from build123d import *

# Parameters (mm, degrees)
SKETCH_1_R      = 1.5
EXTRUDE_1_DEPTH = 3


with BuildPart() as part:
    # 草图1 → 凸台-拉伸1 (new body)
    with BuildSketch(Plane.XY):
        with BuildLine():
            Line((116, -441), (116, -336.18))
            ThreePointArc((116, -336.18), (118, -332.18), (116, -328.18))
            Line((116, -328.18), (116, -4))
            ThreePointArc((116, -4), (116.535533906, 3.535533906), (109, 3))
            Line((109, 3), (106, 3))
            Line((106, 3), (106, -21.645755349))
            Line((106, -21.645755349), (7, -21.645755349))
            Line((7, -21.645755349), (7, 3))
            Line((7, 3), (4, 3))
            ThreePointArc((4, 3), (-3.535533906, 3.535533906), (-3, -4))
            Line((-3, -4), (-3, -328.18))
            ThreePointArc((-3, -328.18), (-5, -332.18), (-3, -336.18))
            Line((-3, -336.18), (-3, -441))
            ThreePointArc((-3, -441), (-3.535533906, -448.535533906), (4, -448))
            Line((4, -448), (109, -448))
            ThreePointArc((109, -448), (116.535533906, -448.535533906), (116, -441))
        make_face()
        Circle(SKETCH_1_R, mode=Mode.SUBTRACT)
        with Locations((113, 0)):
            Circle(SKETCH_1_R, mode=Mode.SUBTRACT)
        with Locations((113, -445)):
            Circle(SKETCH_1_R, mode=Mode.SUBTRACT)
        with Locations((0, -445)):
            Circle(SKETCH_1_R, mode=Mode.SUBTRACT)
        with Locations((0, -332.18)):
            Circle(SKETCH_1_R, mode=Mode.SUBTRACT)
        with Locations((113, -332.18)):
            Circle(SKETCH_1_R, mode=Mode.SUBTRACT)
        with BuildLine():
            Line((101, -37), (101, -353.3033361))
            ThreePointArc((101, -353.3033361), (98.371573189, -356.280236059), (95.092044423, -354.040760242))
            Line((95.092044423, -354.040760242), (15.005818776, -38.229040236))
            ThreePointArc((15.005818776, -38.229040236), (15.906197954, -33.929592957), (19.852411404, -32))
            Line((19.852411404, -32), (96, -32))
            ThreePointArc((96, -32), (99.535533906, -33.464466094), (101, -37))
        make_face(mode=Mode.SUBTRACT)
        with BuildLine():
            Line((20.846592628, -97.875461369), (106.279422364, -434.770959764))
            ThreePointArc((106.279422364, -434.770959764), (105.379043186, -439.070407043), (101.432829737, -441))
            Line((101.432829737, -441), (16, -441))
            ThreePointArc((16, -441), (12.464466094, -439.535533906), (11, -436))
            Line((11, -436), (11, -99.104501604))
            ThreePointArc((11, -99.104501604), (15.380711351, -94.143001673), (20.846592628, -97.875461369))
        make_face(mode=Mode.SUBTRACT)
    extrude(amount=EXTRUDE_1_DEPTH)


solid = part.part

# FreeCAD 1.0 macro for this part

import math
import FreeCAD as App
import Part
import Sketcher
from FreeCAD import Vector

doc = App.newDocument("Part")
body = doc.addObject("PartDesign::Body", "Body")

# Sketch on XY plane
sketch1 = body.newObject("Sketcher::SketchObject", "Sketch")
sketch1.AttachmentSupport = (doc.getObject("XY_Plane"), [""])
sketch1.MapMode = "FlatFace"
sketch1.addGeometry(Part.LineSegment(Vector(116, -441, 0), Vector(116, -336.2, 0)), False)
sketch1.addGeometry(Part.ArcOfCircle(Part.Circle(Vector(113, -332.2, 0), Vector(0, 0, 1), 5), math.radians(-53), math.radians(53)), False)
sketch1.addGeometry(Part.LineSegment(Vector(116, -328.2, 0), Vector(116, -4, 0)), False)
sketch1.addGeometry(Part.ArcOfCircle(Part.Circle(Vector(113, 0, 0), Vector(0, 0, 1), 5), math.radians(-53), math.radians(143)), False)
sketch1.addGeometry(Part.LineSegment(Vector(109, 3, 0), Vector(106, 3, 0)), False)
sketch1.addGeometry(Part.LineSegment(Vector(106, 3, 0), Vector(106, -21.6, 0)), False)
sketch1.addGeometry(Part.LineSegment(Vector(106, -21.6, 0), Vector(7, -21.6, 0)), False)
sketch1.addGeometry(Part.LineSegment(Vector(7, -21.6, 0), Vector(7, 3, 0)), False)
sketch1.addGeometry(Part.LineSegment(Vector(7, 3, 0), Vector(4, 3, 0)), False)
sketch1.addGeometry(Part.ArcOfCircle(Part.Circle(Vector(0, 0, 0), Vector(0, 0, 1), 5), math.radians(37), math.radians(233)), False)
sketch1.addGeometry(Part.LineSegment(Vector(-3, -4, 0), Vector(-3, -328.2, 0)), False)
sketch1.addGeometry(Part.ArcOfCircle(Part.Circle(Vector(0, -332.2, 0), Vector(0, 0, 1), 5), math.radians(127), math.radians(233)), False)
sketch1.addGeometry(Part.LineSegment(Vector(-3, -336.2, 0), Vector(-3, -441, 0)), False)
sketch1.addGeometry(Part.ArcOfCircle(Part.Circle(Vector(0, -445, 0), Vector(0, 0, 1), 5), math.radians(127), math.radians(323)), False)
sketch1.addGeometry(Part.LineSegment(Vector(4, -448, 0), Vector(109, -448, 0)), False)
sketch1.addGeometry(Part.ArcOfCircle(Part.Circle(Vector(113, -445, 0), Vector(0, 0, 1), 5), math.radians(-143), math.radians(53)), False)
sketch1.addGeometry(Part.Circle(Vector(0, -445, 0), Vector(0, 0, 1), 1.5), False)
sketch1.addGeometry(Part.Circle(Vector(0, -332.2, 0), Vector(0, 0, 1), 1.5), False)
sketch1.addGeometry(Part.Circle(Vector(113, -445, 0), Vector(0, 0, 1), 1.5), False)
sketch1.addGeometry(Part.ArcOfCircle(Part.Circle(Vector(16, -99.1, 0), Vector(0, 0, 1), 5), math.radians(14), math.radians(180)), False)
sketch1.addGeometry(Part.LineSegment(Vector(20.8, -97.9, 0), Vector(106.3, -434.8, 0)), False)
sketch1.addGeometry(Part.ArcOfCircle(Part.Circle(Vector(101.4, -436, 0), Vector(0, 0, 1), 5), math.radians(-90), math.radians(14)), False)
sketch1.addGeometry(Part.LineSegment(Vector(101.4, -441, 0), Vector(16, -441, 0)), False)
sketch1.addGeometry(Part.ArcOfCircle(Part.Circle(Vector(16, -436, 0), Vector(0, 0, 1), 5), math.radians(180), math.radians(270)), False)
sketch1.addGeometry(Part.LineSegment(Vector(11, -436, 0), Vector(11, -99.1, 0)), False)
sketch1.addGeometry(Part.Circle(Vector(113, -332.2, 0), Vector(0, 0, 1), 1.5), False)
sketch1.addGeometry(Part.Circle(Vector(0, 0, 0), Vector(0, 0, 1), 1.5), False)
sketch1.addGeometry(Part.ArcOfCircle(Part.Circle(Vector(96, -37, 0), Vector(0, 0, 1), 5), math.radians(0), math.radians(90)), False)
sketch1.addGeometry(Part.LineSegment(Vector(101, -37, 0), Vector(101, -353.3, 0)), False)
sketch1.addGeometry(Part.ArcOfCircle(Part.Circle(Vector(98, -353.3, 0), Vector(0, 0, 1), 3), math.radians(-166), math.radians(0)), False)
sketch1.addGeometry(Part.LineSegment(Vector(95.1, -354, 0), Vector(15, -38.2, 0)), False)
sketch1.addGeometry(Part.ArcOfCircle(Part.Circle(Vector(19.9, -37, 0), Vector(0, 0, 1), 5), math.radians(90), math.radians(194)), False)
sketch1.addGeometry(Part.LineSegment(Vector(19.9, -32, 0), Vector(96, -32, 0)), False)
sketch1.addGeometry(Part.Circle(Vector(113, 0, 0), Vector(0, 0, 1), 1.5), False)
sketch1.addConstraint(Sketcher.Constraint("Coincident", 0, 2, 1, 1))
sketch1.addConstraint(Sketcher.Constraint("Coincident", 1, 2, 2, 1))
sketch1.addConstraint(Sketcher.Constraint("Coincident", 2, 2, 3, 1))
sketch1.addConstraint(Sketcher.Constraint("Coincident", 3, 2, 4, 1))
sketch1.addConstraint(Sketcher.Constraint("Coincident", 4, 2, 5, 1))
sketch1.addConstraint(Sketcher.Constraint("Coincident", 5, 2, 6, 1))
sketch1.addConstraint(Sketcher.Constraint("Coincident", 6, 2, 7, 1))
sketch1.addConstraint(Sketcher.Constraint("Coincident", 7, 2, 8, 1))
sketch1.addConstraint(Sketcher.Constraint("Coincident", 8, 2, 9, 1))
sketch1.addConstraint(Sketcher.Constraint("Coincident", 9, 2, 10, 1))
sketch1.addConstraint(Sketcher.Constraint("Coincident", 10, 2, 11, 1))
sketch1.addConstraint(Sketcher.Constraint("Coincident", 11, 2, 12, 1))
sketch1.addConstraint(Sketcher.Constraint("Coincident", 12, 2, 13, 1))
sketch1.addConstraint(Sketcher.Constraint("Coincident", 13, 2, 14, 1))
sketch1.addConstraint(Sketcher.Constraint("Coincident", 14, 2, 15, 1))
sketch1.addConstraint(Sketcher.Constraint("Coincident", 15, 2, 0, 1))
sketch1.addConstraint(Sketcher.Constraint("Tangent", 19, 1, 20, 1))
sketch1.addConstraint(Sketcher.Constraint("Tangent", 20, 2, 21, 2))
sketch1.addConstraint(Sketcher.Constraint("Tangent", 21, 1, 22, 1))
sketch1.addConstraint(Sketcher.Constraint("Tangent", 22, 2, 23, 2))
sketch1.addConstraint(Sketcher.Constraint("Tangent", 23, 1, 24, 1))
sketch1.addConstraint(Sketcher.Constraint("Tangent", 24, 2, 19, 2))
sketch1.addConstraint(Sketcher.Constraint("Tangent", 27, 1, 28, 1))
sketch1.addConstraint(Sketcher.Constraint("Tangent", 28, 2, 29, 2))
sketch1.addConstraint(Sketcher.Constraint("Tangent", 29, 1, 30, 1))
sketch1.addConstraint(Sketcher.Constraint("Tangent", 30, 2, 31, 2))
sketch1.addConstraint(Sketcher.Constraint("Tangent", 31, 1, 32, 1))
sketch1.addConstraint(Sketcher.Constraint("Tangent", 32, 2, 27, 2))
sketch1.addConstraint(Sketcher.Constraint("Vertical", 0))
sketch1.addConstraint(Sketcher.Constraint("Vertical", 2))
sketch1.addConstraint(Sketcher.Constraint("Horizontal", 4))
sketch1.addConstraint(Sketcher.Constraint("Vertical", 5))
sketch1.addConstraint(Sketcher.Constraint("Horizontal", 6))
sketch1.addConstraint(Sketcher.Constraint("Vertical", 7))
sketch1.addConstraint(Sketcher.Constraint("Horizontal", 8))
sketch1.addConstraint(Sketcher.Constraint("Vertical", 10))
sketch1.addConstraint(Sketcher.Constraint("Vertical", 12))
sketch1.addConstraint(Sketcher.Constraint("Horizontal", 14))
sketch1.addConstraint(Sketcher.Constraint("Horizontal", 22))
sketch1.addConstraint(Sketcher.Constraint("Vertical", 24))
sketch1.addConstraint(Sketcher.Constraint("Vertical", 28))
sketch1.addConstraint(Sketcher.Constraint("Horizontal", 32))
sketch1.addConstraint(Sketcher.Constraint("Coincident", 9, 3, -1, 1))
sketch1.addConstraint(Sketcher.Constraint("Coincident", 26, 3, -1, 1))
sketch1.addConstraint(Sketcher.Constraint("Coincident", 16, 3, 13, 3))
sketch1.addConstraint(Sketcher.Constraint("Coincident", 17, 3, 11, 3))
sketch1.addConstraint(Sketcher.Constraint("Coincident", 18, 3, 15, 3))
sketch1.addConstraint(Sketcher.Constraint("Coincident", 25, 3, 1, 3))
sketch1.addConstraint(Sketcher.Constraint("Coincident", 33, 3, 3, 3))
sketch1.addConstraint(Sketcher.Constraint("Equal", 1, 3))
sketch1.addConstraint(Sketcher.Constraint("Equal", 3, 9))
sketch1.addConstraint(Sketcher.Constraint("Equal", 9, 11))
sketch1.addConstraint(Sketcher.Constraint("Equal", 11, 13))
sketch1.addConstraint(Sketcher.Constraint("Equal", 13, 15))
sketch1.addConstraint(Sketcher.Constraint("Equal", 16, 17))
sketch1.addConstraint(Sketcher.Constraint("Equal", 17, 18))
sketch1.addConstraint(Sketcher.Constraint("Equal", 15, 19))
sketch1.addConstraint(Sketcher.Constraint("Equal", 19, 21))
sketch1.addConstraint(Sketcher.Constraint("Equal", 21, 23))
sketch1.addConstraint(Sketcher.Constraint("Equal", 18, 25))
sketch1.addConstraint(Sketcher.Constraint("Equal", 25, 26))
sketch1.addConstraint(Sketcher.Constraint("Equal", 23, 27))
sketch1.addConstraint(Sketcher.Constraint("Equal", 27, 31))
sketch1.addConstraint(Sketcher.Constraint("Equal", 26, 33))
sketch1.addConstraint(Sketcher.Constraint("PointOnObject", 3, 3, -1))
sketch1.addConstraint(Sketcher.Constraint("PointOnObject", 11, 3, -2))
sketch1.addConstraint(Sketcher.Constraint("PointOnObject", 13, 3, -2))
sketch1.addConstraint(Sketcher.Constraint("Parallel", 20, 30))
sketch1.addConstraint(Sketcher.Constraint("Horizontal", 1, 3, 11, 3))
sketch1.addConstraint(Sketcher.Constraint("Horizontal", 13, 3, 15, 3))
sketch1.addConstraint(Sketcher.Constraint("Horizontal", 4, 2, 7, 2))
sketch1.addConstraint(Sketcher.Constraint("Horizontal", 2, 2, 9, 2))
sketch1.addConstraint(Sketcher.Constraint("Horizontal", 1, 2, 10, 2))
sketch1.addConstraint(Sketcher.Constraint("Horizontal", 0, 2, 11, 2))
sketch1.addConstraint(Sketcher.Constraint("Horizontal", 12, 2, 15, 2))
sketch1.addConstraint(Sketcher.Constraint("Horizontal", 15, 2, 21, 1))
sketch1.addConstraint(Sketcher.Constraint("Vertical", 0, 2, 1, 2))
sketch1.addConstraint(Sketcher.Constraint("Vertical", 8, 2, 13, 2))
sketch1.addConstraint(Sketcher.Constraint("Equal", 4, 8))
sketch1.addConstraint(Sketcher.Constraint("Diameter", 16, 3.0))
sketch1.addConstraint(Sketcher.Constraint("Radius", 1, 5.0))
sketch1.addConstraint(Sketcher.Constraint("Radius", 29, 3.0))
sketch1.addConstraint(Sketcher.Constraint("DistanceX", 4, 2, 4, 1, 3.0))
sketch1.addConstraint(Sketcher.Constraint("DistanceX", 6, 2, 6, 1, 99.0))
sketch1.addConstraint(Sketcher.Constraint("DistanceX", -1, 1, 1, 3, 113.0))
sketch1.addConstraint(Sketcher.Constraint("DistanceY", 13, 3, -1, 1, 445.0))
sketch1.addConstraint(Sketcher.Constraint("DistanceX", -1, 1, 19, 3, 16.0))
sketch1.addConstraint(Sketcher.Constraint("DistanceY", 21, 3, -1, 1, 436.0))
sketch1.addConstraint(Sketcher.Constraint("DistanceX", -1, 1, 27, 3, 96.0))
sketch1.addConstraint(Sketcher.Constraint("DistanceY", 27, 3, -1, 1, 37.0))
sketch1.addConstraint(Sketcher.Constraint("DistanceY", 0, 1, 0, 2, 104.82))
sketch1.addConstraint(Sketcher.Constraint("DistanceY", 24, 1, 24, 2, 336.895498))
sketch1.addConstraint(Sketcher.Constraint("DistanceX", 22, 2, 22, 1, 85.43283))
sketch1.addConstraint(Sketcher.Constraint("DistanceX", 32, 1, 32, 2, 76.147589))
sketch1.addConstraint(Sketcher.Constraint("DistanceY", 5, 2, 5, 1, 24.645755))
pad1 = body.newObject("PartDesign::Pad", "Pad")
pad1.Profile = sketch1
pad1.Length = 3

doc.recompute()
